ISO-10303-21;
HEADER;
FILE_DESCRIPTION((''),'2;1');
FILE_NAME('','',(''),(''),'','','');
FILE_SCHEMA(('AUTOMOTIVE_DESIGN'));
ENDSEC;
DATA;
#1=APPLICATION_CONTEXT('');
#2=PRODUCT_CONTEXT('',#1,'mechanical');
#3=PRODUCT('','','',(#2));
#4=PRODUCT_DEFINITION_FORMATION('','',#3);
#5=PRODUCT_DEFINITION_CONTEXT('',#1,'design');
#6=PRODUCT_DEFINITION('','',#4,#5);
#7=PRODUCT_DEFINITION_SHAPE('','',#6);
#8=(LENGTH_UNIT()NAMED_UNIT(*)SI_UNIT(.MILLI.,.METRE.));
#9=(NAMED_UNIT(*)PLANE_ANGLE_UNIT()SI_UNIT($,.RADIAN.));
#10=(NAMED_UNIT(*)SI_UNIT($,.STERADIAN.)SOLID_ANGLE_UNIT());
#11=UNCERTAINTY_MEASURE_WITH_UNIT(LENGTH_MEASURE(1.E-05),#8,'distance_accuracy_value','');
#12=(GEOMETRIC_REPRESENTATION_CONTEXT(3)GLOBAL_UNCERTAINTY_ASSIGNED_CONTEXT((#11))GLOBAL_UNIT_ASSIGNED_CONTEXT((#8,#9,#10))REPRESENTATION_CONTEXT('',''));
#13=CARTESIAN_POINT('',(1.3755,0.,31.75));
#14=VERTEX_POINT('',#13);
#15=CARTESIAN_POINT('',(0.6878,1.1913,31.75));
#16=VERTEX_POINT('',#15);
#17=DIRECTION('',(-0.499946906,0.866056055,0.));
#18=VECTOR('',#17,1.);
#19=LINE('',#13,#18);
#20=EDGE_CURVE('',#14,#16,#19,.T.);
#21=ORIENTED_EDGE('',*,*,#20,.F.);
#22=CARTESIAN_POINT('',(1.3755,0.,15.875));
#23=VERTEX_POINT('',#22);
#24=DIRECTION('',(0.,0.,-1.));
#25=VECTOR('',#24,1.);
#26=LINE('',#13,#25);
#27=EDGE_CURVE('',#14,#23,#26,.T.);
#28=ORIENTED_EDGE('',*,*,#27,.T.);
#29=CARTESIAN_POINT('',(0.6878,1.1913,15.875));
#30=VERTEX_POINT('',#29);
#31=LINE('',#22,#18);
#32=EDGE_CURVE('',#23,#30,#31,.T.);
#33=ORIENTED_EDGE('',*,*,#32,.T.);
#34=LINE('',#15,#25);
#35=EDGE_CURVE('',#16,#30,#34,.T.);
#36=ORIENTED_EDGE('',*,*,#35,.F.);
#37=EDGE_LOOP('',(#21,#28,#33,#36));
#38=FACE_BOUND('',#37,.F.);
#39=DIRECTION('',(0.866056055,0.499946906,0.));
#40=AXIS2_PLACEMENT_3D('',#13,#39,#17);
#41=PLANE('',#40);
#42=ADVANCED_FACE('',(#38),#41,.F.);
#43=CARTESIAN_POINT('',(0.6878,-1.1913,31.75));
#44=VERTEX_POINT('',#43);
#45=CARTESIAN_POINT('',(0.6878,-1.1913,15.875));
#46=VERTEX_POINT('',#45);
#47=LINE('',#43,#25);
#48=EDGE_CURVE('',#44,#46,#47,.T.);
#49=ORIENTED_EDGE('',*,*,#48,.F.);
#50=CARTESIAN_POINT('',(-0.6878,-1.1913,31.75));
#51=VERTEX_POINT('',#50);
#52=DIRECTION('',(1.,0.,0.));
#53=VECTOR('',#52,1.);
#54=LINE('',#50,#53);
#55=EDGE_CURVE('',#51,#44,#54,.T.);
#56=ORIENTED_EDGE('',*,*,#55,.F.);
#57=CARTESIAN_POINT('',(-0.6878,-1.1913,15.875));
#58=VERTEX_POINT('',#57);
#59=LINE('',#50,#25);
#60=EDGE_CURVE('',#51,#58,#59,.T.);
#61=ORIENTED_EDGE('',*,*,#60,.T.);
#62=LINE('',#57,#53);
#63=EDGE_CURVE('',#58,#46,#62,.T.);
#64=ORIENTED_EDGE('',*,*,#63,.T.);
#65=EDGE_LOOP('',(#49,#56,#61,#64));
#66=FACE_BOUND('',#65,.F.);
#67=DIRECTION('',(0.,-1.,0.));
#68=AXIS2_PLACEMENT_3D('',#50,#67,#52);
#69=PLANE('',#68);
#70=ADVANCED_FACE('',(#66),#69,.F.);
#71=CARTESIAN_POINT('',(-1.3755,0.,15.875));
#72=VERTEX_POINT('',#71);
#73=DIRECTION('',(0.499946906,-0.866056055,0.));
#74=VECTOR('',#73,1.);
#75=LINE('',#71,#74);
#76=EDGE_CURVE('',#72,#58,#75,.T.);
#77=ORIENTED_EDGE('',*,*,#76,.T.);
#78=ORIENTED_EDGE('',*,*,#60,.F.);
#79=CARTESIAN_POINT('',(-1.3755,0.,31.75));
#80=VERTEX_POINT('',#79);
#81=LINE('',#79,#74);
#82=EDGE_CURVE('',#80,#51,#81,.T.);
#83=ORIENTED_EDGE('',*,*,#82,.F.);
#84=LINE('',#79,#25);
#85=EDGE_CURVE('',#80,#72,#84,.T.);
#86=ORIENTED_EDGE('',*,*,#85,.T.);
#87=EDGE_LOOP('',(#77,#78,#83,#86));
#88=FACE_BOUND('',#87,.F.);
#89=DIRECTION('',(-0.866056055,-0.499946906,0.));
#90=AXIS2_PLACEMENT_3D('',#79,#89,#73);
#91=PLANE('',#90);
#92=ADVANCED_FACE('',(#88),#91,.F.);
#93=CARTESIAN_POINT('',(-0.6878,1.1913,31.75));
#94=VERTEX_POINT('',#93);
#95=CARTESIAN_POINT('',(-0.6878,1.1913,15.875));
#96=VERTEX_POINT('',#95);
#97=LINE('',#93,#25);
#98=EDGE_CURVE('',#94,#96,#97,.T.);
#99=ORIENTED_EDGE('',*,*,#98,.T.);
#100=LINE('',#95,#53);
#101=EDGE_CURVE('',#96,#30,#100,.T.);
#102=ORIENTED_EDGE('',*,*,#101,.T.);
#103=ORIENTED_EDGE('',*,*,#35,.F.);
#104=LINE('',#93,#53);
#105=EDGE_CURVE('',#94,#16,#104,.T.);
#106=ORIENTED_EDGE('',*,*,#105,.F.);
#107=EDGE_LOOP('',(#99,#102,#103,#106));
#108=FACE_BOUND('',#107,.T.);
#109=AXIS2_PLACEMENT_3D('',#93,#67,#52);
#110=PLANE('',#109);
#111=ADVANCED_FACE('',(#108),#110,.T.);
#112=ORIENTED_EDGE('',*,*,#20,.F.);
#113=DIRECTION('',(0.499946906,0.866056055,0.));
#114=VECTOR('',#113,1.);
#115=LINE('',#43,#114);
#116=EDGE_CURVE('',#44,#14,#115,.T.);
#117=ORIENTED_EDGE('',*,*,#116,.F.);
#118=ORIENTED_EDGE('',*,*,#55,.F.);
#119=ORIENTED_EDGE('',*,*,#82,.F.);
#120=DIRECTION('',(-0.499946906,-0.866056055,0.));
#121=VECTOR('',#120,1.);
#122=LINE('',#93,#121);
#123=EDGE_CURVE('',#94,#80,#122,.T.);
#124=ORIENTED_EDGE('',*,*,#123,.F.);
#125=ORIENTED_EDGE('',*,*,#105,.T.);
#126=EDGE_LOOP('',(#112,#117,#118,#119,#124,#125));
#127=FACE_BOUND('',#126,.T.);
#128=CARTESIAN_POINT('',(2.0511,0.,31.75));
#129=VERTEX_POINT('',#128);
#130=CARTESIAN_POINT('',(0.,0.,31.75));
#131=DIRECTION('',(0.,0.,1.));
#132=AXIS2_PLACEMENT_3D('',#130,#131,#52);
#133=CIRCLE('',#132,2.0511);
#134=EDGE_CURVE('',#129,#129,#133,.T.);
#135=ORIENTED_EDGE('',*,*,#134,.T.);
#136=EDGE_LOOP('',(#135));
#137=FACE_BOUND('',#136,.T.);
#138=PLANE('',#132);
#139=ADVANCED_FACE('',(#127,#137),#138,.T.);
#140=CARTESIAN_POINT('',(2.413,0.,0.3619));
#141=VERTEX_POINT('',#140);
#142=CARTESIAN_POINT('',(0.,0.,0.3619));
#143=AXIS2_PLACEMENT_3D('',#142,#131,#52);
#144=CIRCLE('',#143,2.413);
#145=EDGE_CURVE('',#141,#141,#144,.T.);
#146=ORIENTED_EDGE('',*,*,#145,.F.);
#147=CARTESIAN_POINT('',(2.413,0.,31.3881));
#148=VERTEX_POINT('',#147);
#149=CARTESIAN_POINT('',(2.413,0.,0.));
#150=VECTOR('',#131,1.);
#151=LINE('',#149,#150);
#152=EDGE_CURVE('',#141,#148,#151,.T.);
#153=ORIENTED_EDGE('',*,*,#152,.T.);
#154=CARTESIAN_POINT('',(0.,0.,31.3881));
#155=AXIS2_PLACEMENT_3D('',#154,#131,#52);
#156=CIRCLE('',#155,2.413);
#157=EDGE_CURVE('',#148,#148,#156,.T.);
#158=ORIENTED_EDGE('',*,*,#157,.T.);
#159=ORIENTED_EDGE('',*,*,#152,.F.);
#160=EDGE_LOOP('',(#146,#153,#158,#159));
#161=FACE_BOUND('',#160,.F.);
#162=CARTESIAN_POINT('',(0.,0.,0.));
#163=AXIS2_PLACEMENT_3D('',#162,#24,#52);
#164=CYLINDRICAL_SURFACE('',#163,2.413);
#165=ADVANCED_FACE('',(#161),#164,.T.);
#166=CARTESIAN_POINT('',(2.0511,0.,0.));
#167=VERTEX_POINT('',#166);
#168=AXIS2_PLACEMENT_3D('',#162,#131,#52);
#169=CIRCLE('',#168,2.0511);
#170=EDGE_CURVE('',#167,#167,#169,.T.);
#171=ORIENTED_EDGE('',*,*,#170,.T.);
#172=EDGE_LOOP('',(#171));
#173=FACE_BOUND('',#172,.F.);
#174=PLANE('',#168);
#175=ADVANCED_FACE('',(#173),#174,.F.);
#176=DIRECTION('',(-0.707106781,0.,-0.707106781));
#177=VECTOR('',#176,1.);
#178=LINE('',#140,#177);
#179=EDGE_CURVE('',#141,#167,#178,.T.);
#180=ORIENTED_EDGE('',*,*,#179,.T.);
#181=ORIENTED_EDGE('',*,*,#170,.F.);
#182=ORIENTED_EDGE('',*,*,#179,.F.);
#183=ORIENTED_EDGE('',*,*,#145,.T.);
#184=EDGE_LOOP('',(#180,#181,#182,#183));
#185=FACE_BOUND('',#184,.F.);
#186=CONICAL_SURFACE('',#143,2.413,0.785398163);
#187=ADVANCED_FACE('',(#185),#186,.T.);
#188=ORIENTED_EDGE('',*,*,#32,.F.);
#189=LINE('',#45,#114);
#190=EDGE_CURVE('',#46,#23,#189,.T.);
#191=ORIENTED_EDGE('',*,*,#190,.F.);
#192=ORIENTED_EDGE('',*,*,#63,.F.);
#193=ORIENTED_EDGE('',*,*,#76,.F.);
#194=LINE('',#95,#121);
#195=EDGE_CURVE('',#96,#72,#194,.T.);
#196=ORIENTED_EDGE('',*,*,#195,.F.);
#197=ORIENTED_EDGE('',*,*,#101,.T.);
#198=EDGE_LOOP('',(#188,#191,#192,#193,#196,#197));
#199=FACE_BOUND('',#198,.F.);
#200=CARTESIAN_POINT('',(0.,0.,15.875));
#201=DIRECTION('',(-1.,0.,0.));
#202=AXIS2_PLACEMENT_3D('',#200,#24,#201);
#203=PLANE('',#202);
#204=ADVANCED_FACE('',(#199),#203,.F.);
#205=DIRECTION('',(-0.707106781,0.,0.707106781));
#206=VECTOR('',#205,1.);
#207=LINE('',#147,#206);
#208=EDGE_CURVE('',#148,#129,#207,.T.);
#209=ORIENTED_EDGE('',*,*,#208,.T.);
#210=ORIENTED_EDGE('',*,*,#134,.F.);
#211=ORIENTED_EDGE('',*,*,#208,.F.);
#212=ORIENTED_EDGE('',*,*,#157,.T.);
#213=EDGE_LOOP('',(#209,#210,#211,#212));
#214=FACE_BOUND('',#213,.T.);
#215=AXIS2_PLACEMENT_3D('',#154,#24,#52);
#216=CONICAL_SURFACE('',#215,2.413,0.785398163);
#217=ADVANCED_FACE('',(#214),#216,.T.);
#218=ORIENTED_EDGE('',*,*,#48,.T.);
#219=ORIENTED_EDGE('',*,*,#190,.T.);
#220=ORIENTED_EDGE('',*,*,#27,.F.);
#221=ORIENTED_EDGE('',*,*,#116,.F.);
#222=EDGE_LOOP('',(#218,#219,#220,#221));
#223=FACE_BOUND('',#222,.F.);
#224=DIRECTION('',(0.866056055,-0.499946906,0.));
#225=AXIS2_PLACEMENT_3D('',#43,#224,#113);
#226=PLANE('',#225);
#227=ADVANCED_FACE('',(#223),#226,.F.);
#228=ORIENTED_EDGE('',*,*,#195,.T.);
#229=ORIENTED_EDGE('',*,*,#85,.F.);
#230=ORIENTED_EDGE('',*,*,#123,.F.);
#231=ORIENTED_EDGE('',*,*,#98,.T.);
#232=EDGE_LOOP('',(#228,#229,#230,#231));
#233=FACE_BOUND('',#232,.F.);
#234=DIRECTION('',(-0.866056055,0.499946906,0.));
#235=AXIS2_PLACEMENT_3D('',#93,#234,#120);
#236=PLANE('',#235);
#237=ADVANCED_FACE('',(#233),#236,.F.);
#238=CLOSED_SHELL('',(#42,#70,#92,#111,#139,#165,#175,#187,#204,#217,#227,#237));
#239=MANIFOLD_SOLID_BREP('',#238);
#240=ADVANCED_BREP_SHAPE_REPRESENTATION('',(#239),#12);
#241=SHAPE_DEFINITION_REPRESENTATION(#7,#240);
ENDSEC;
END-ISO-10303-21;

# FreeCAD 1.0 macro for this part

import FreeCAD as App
import Part
import Sketcher
from FreeCAD import Vector
Q = App.Units.Quantity


def edges_at(feature, points):
    """Names of the edges that pass closest to the given points."""
    edges = feature.Shape.Edges
    near = lambda p: min(range(len(edges)), key=lambda i: edges[i].distToShape(Part.Vertex(*p))[0])
    return sorted({f"Edge{near(p) + 1}" for p in points})

doc = App.newDocument("Part")
body = doc.addObject("PartDesign::Body", "Body")

# Sketch on XY plane
sketch1 = body.newObject("Sketcher::SketchObject", "Sketch")
sketch1.AttachmentSupport = (doc.getObject("XY_Plane"), [""])
sketch1.MapMode = "FlatFace"
sketch1.addGeometry(Part.Circle(Vector(0, 0, 0), Vector(0, 0, 1), 2.413), False)
sketch1.addConstraint(Sketcher.Constraint("Coincident", 0, 3, -1, 1))
sketch1.addConstraint(Sketcher.Constraint("Diameter", 0, Q("0.19 in")))
pad1 = body.newObject("PartDesign::Pad", "Pad")
pad1.Profile = sketch1
pad1.Length = Q("1.25 in")
doc.recompute()

chamfer = body.newObject("PartDesign::Chamfer", "Chamfer")
chamfer.Base = (pad1, edges_at(pad1, [(-2.413, 0, 0), (-2.413, 0, 31.75)]))
chamfer.Size = 0.3619

# Sketch on XY plane
sketch2 = body.newObject("Sketcher::SketchObject", "Sketch001")
sketch2.AttachmentSupport = (doc.getObject("XY_Plane"), [""])
sketch2.MapMode = "FlatFace"
sketch2.AttachmentOffset = App.Placement(Vector(0, 0, 1.25 * 25.4), App.Rotation())
sketch2.addGeometry(Part.LineSegment(Vector(0.6878, 1.1913, 0), Vector(-0.6878, 1.1913, 0)), False)
sketch2.addGeometry(Part.LineSegment(Vector(-0.6878, 1.1913, 0), Vector(-1.3755, 0, 0)), False)
sketch2.addGeometry(Part.LineSegment(Vector(-1.3755, 0, 0), Vector(-0.6878, -1.1913, 0)), False)
sketch2.addGeometry(Part.LineSegment(Vector(-0.6878, -1.1913, 0), Vector(0.6878, -1.1913, 0)), False)
sketch2.addGeometry(Part.LineSegment(Vector(0.6878, -1.1913, 0), Vector(1.3755, 0, 0)), False)
sketch2.addGeometry(Part.LineSegment(Vector(1.3755, 0, 0), Vector(0.6878, 1.1913, 0)), False)
sketch2.addConstraint(Sketcher.Constraint("Coincident", 0, 2, 1, 1))
sketch2.addConstraint(Sketcher.Constraint("Coincident", 1, 2, 2, 1))
sketch2.addConstraint(Sketcher.Constraint("Coincident", 2, 2, 3, 1))
sketch2.addConstraint(Sketcher.Constraint("Coincident", 3, 2, 4, 1))
sketch2.addConstraint(Sketcher.Constraint("Coincident", 4, 2, 5, 1))
sketch2.addConstraint(Sketcher.Constraint("Coincident", 5, 2, 0, 1))
sketch2.addConstraint(Sketcher.Constraint("Horizontal", 0))
sketch2.addConstraint(Sketcher.Constraint("Horizontal", 3))
sketch2.addConstraint(Sketcher.Constraint("Symmetric", 0, 2, 3, 2, -1, 1))
sketch2.addConstraint(Sketcher.Constraint("Symmetric", 1, 2, 4, 2, -1, 1))
sketch2.addConstraint(Sketcher.Constraint("PointOnObject", 1, 2, -1))
sketch2.addConstraint(Sketcher.Constraint("Parallel", 2, 5))
sketch2.addConstraint(Sketcher.Constraint("Vertical", 0, 2, 2, 2))
sketch2.addConstraint(Sketcher.Constraint("DistanceX", 0, 2, 0, 1, 1.3756))
sketch2.addConstraint(Sketcher.Constraint("DistanceY", -1, 1, 0, 2, Q("0.0469 in")))
sketch2.addConstraint(Sketcher.Constraint("DistanceX", 1, 2, 4, 2, Q("0.1083 in")))
pocket1 = body.newObject("PartDesign::Pocket", "Pocket")
pocket1.Profile = sketch2
pocket1.Length = Q("0.625 in")

doc.recompute()
